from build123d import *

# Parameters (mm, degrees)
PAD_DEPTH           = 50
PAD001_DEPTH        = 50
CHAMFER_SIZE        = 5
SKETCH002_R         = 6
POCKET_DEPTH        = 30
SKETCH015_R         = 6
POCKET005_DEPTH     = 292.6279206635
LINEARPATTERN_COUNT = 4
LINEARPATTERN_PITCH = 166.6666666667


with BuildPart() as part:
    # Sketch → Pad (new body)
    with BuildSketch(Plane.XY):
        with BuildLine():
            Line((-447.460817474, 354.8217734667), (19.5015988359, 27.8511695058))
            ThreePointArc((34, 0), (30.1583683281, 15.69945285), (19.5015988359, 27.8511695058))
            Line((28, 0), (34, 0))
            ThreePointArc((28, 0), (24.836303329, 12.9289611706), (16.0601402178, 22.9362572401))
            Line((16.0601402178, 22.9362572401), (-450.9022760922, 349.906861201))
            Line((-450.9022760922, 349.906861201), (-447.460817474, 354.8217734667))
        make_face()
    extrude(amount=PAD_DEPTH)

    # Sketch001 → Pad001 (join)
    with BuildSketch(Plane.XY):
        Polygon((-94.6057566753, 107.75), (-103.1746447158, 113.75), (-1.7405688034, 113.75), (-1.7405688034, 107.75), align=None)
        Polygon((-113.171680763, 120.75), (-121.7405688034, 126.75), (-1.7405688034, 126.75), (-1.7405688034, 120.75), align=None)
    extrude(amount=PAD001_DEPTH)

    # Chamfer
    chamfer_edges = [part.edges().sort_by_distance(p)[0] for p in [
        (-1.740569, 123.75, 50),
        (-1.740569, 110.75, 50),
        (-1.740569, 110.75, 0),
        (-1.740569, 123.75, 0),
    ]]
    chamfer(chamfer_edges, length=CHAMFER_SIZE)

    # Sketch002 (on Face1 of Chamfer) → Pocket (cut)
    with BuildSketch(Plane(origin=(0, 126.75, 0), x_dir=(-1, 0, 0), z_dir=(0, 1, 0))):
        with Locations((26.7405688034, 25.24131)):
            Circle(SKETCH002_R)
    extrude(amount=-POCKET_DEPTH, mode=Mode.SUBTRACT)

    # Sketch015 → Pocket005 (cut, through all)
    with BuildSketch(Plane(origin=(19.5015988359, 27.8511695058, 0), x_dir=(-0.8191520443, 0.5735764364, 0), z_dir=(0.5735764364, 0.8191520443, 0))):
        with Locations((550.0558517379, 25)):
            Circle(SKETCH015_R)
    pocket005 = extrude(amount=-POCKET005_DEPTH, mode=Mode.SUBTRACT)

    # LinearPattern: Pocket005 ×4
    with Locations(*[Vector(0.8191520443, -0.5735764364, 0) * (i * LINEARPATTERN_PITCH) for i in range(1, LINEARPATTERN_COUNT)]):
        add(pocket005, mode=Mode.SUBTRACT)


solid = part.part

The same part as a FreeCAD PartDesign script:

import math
import FreeCAD as App
import Part
import Sketcher

V = App.Vector
Q = App.Units.Quantity


def edges_at(feature, points):
    """Names of the edges that pass closest to the given points."""
    edges = feature.Shape.Edges
    near = lambda p: min(range(len(edges)), key=lambda i: edges[i].distToShape(Part.Vertex(*p))[0])
    return sorted({f"Edge{near(p) + 1}" for p in points})

doc = App.newDocument("Part")
params = doc.addObject("Spreadsheet::Sheet", "Params")
for row, (alias, value) in enumerate([
    ("sketch1_radius", "28 mm"),
    ("sketch1_radius2", "34 mm"),
    ("pad1_length", "50 mm"),
    ("sketch2_width", "120 mm"),
    ("sketch2_height", "6 mm"),
    ("pad2_length", "50 mm"),
    ("chamfer_size", "5 mm"),
    ("sketch3_diameter", "12 mm"),
    ("pocket1_length", "30 mm"),
    ("sketch4_diameter", "12 mm"),
    ("linearpattern_pitch", "166.666667 mm"),
], start=1):
    params.set(f"A{row}", alias)
    params.set(f"B{row}", "=" + value)
    params.setAlias(f"B{row}", alias)

body = doc.addObject("PartDesign::Body", "Body")

# Sketch on XY plane
sketch1 = doc.addObject("Sketcher::SketchObject", "Sketch")
body.addObject(sketch1)
sketch1.AttachmentSupport = (doc.XY_Plane, [""])
sketch1.MapMode = "FlatFace"
sketch1.addGeometry([
    Part.LineSegment(V(19.501599, 27.85117, 0), V(-447.460817, 354.821773, 0)),  # 0
    Part.LineSegment(V(-447.460817, 354.821773, 0), V(-450.902276, 349.906861, 0)),  # 1
    Part.LineSegment(V(-450.902276, 349.906861, 0), V(16.06014, 22.936257, 0)),  # 2
    Part.ArcOfCircle(Part.Circle(V(0, 0, 0), V(0, 0, 1), 28), math.radians(0), math.radians(55)),  # 3
    Part.LineSegment(V(28, 0, 0), V(34, 0, 0)),  # 4
    Part.ArcOfCircle(Part.Circle(V(0, 0, 0), V(0, 0, 1), 34), math.radians(0), math.radians(55)),  # 5
], False)
sketch1.addConstraint([
    Sketcher.Constraint("Coincident", 0, 2, 1, 1),
    Sketcher.Constraint("Coincident", 1, 2, 2, 1),
    Sketcher.Constraint("Tangent", 2, 2, 3, 2),
    Sketcher.Constraint("Coincident", 3, 1, 4, 1),
    Sketcher.Constraint("Coincident", 4, 2, 5, 1),
    Sketcher.Constraint("Tangent", 5, 2, 0, 1),
    Sketcher.Constraint("Horizontal", 4),
    Sketcher.Constraint("Coincident", 3, 3, -1, 1),
    Sketcher.Constraint("Coincident", 5, 3, -1, 1),
    Sketcher.Constraint("PointOnObject", 3, 1, -1),
    Sketcher.Constraint("Perpendicular", 0, 1),
    Sketcher.Constraint("Perpendicular", 1, 2),
    Sketcher.Constraint("Radius", 3, Q("28 mm")),
    Sketcher.Constraint("Radius", 5, Q("34 mm")),
    Sketcher.Constraint("Angle", 0, Q("145 deg")),
    Sketcher.Constraint("Distance", 0, Q("570.055852 mm")),
])
sketch1.setExpression("Constraints[12]", "Params.sketch1_radius")
sketch1.setExpression("Constraints[13]", "Params.sketch1_radius2")
pad1 = doc.addObject("PartDesign::Pad", "Pad")
body.addObject(pad1)
pad1.Profile = sketch1
pad1.setExpression("Length", "Params.pad1_length")

# Sketch on XY plane
sketch2 = doc.addObject("Sketcher::SketchObject", "Sketch001")
body.addObject(sketch2)
sketch2.AttachmentSupport = (doc.XY_Plane, [""])
sketch2.MapMode = "FlatFace"
sketch2.addGeometry([
    Part.LineSegment(V(-103.174645, 113.75, 0), V(-94.605757, 107.75, 0)),  # 0
    Part.LineSegment(V(-94.605757, 107.75, 0), V(-1.740569, 107.75, 0)),  # 1
    Part.LineSegment(V(-1.740569, 107.75, 0), V(-1.740569, 113.75, 0)),  # 2
    Part.LineSegment(V(-1.740569, 113.75, 0), V(-103.174645, 113.75, 0)),  # 3
    Part.LineSegment(V(-121.740569, 126.75, 0), V(-113.171681, 120.75, 0)),  # 4
    Part.LineSegment(V(-113.171681, 120.75, 0), V(-1.740569, 120.75, 0)),  # 5
    Part.LineSegment(V(-1.740569, 120.75, 0), V(-1.740569, 126.75, 0)),  # 6
    Part.LineSegment(V(-1.740569, 126.75, 0), V(-121.740569, 126.75, 0)),  # 7
], False)
sketch2.addConstraint([
    Sketcher.Constraint("Coincident", 0, 2, 1, 1),
    Sketcher.Constraint("Coincident", 1, 2, 2, 1),
    Sketcher.Constraint("Coincident", 2, 2, 3, 1),
    Sketcher.Constraint("Coincident", 3, 2, 0, 1),
    Sketcher.Constraint("Coincident", 4, 2, 5, 1),
    Sketcher.Constraint("Coincident", 5, 2, 6, 1),
    Sketcher.Constraint("Coincident", 6, 2, 7, 1),
    Sketcher.Constraint("Coincident", 7, 2, 4, 1),
    Sketcher.Constraint("Horizontal", 1),
    Sketcher.Constraint("Vertical", 2),
    Sketcher.Constraint("Horizontal", 3),
    Sketcher.Constraint("Horizontal", 5),
    Sketcher.Constraint("Vertical", 6),
    Sketcher.Constraint("Horizontal", 7),
    Sketcher.Constraint("Parallel", 0, 4),
    Sketcher.Constraint("Vertical", 2, 2, 5, 2),
    Sketcher.Constraint("Equal", 2, 6),
    Sketcher.Constraint("DistanceX", 7, 2, 7, 1, Q("120 mm")),
    Sketcher.Constraint("DistanceY", 2, 1, 2, 2, Q("6 mm")),
    Sketcher.Constraint("Angle", 0, Q("-35 deg")),
    Sketcher.Constraint("DistanceY", 3, 2, 4, 2, Q("7 mm")),
    Sketcher.Constraint("DistanceY", -1, 1, 0, 2, Q("107.75 mm")),
    Sketcher.Constraint("DistanceX", 1, 1, 1, 2, Q("92.865188 mm")),
    Sketcher.Constraint("DistanceX", 1, 2, -1, 1, Q("1.740569 mm")),
])
sketch2.setExpression("Constraints[17]", "Params.sketch2_width")
sketch2.setExpression("Constraints[18]", "Params.sketch2_height")
pad2 = doc.addObject("PartDesign::Pad", "Pad001")
body.addObject(pad2)
pad2.Profile = sketch2
pad2.setExpression("Length", "Params.pad2_length")
doc.recompute()

chamfer = doc.addObject("PartDesign::Chamfer", "Chamfer")
body.addObject(chamfer)
chamfer.Base = (pad2, edges_at(pad2, [
    (-1.741, 123.75, 50),
    (-1.741, 110.75, 50),
    (-1.741, 110.75, 0),
    (-1.741, 123.75, 0),
]))
chamfer.setExpression("Size", "Params.chamfer_size")

# Sketch on XZ plane
sketch3 = doc.addObject("Sketcher::SketchObject", "Sketch002")
body.addObject(sketch3)
sketch3.AttachmentSupport = (doc.XZ_Plane, [""])
sketch3.MapMode = "FlatFace"
sketch3.AttachmentOffset = App.Placement(V(0, 0, -126.75), App.Rotation())
sketch3.addGeometry(Part.Circle(V(-26.740569, 25.24131, 0), V(0, 0, 1), 6), False)
sketch3.addConstraint([
    Sketcher.Constraint("Diameter", 0, Q("12 mm")),
    Sketcher.Constraint("DistanceX", 0, 3, -1, 1, Q("26.740569 mm")),
    Sketcher.Constraint("DistanceY", -1, 1, 0, 3, Q("25.24131 mm")),
])
sketch3.setExpression("Constraints[0]", "Params.sketch3_diameter")
pocket1 = doc.addObject("PartDesign::Pocket", "Pocket")
body.addObject(pocket1)
pocket1.Profile = sketch3
pocket1.setExpression("Length", "Params.pocket1_length")
pocket1.Reversed = True

# Sketch on an angled plane
sketch4 = doc.addObject("Sketcher::SketchObject", "Sketch003")
body.addObject(sketch4)
sketch4.Placement = App.Placement(V(19.501599, 27.85117, 0), App.Rotation(V(-0.819152044, 0.573576436, 0), V(0, 0, 0.999999999), V(0.573576436, 0.819152044, 0), "ZXY"))
sketch4.addGeometry(Part.Circle(V(550.055851, 25, 0), V(0, 0, 1), 6), False)
sketch4.addConstraint([
    Sketcher.Constraint("Diameter", 0, Q("12 mm")),
    Sketcher.Constraint("DistanceY", -1, 1, 0, 3, Q("25 mm")),
    Sketcher.Constraint("DistanceX", -1, 1, 0, 3, Q("550.055851 mm")),
])
sketch4.setExpression("Constraints[0]", "Params.sketch4_diameter")
pocket2 = doc.addObject("PartDesign::Pocket", "Pocket001")
body.addObject(pocket2)
pocket2.Profile = sketch4
pocket2.Type = "ThroughAll"
doc.recompute()

datumline = doc.addObject("PartDesign::Line", "DatumLine")
body.addObject(datumline)
datumline.Placement = App.Placement(V(0, 0, 0), App.Rotation(V(0, 0, 1), V(0.819152044, -0.573576436, 0)))
linearpattern = doc.addObject("PartDesign::LinearPattern", "LinearPattern")
body.addObject(linearpattern)
linearpattern.Originals = [pocket2]
linearpattern.Direction = (datumline, [""])
linearpattern.Mode = "offset"
linearpattern.setExpression("Offset", "Params.linearpattern_pitch")
linearpattern.Occurrences = 4
body.Tip = linearpattern

doc.recompute()
